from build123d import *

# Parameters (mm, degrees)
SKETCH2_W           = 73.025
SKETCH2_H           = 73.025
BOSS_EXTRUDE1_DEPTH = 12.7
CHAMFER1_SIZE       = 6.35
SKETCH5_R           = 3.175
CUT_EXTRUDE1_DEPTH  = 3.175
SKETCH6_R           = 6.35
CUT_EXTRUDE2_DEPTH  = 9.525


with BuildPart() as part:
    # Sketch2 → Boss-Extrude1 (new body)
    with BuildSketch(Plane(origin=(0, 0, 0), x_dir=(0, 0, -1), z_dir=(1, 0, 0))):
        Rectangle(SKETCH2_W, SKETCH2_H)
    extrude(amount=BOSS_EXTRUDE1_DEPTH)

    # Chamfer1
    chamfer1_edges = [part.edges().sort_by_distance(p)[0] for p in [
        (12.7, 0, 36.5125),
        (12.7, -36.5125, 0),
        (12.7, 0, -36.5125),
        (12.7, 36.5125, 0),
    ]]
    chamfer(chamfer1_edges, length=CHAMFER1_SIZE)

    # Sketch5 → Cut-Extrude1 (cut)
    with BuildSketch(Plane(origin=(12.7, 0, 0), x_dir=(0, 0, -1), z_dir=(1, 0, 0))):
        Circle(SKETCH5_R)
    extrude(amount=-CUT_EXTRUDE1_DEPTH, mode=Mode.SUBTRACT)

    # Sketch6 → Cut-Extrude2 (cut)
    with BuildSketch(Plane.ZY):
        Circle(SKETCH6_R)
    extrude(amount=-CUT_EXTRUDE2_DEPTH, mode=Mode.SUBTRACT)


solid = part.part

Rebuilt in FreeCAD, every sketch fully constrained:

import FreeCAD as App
import Part
import Sketcher
from FreeCAD import Vector
Q = App.Units.Quantity


def edges_at(feature, points):
    """Names of the edges that pass closest to the given points."""
    edges = feature.Shape.Edges
    near = lambda p: min(range(len(edges)), key=lambda i: edges[i].distToShape(Part.Vertex(*p))[0])
    return sorted({f"Edge{near(p) + 1}" for p in points})

doc = App.newDocument("Part")
body = doc.addObject("PartDesign::Body", "Body")

# Sketch on YZ plane
sketch1 = body.newObject("Sketcher::SketchObject", "Sketch")
sketch1.AttachmentSupport = (doc.getObject("YZ_Plane"), [""])
sketch1.MapMode = "FlatFace"
sketch1.addGeometry([
    Part.LineSegment(Vector(37, 37, 0), Vector(-37, 37, 0)),
    Part.LineSegment(Vector(-37, 37, 0), Vector(-37, -37, 0)),
    Part.LineSegment(Vector(-37, -37, 0), Vector(37, -37, 0)),
    Part.LineSegment(Vector(37, -37, 0), Vector(37, 37, 0)),
], False)
sketch1.addConstraint([
    Sketcher.Constraint("Coincident", 0, 2, 1, 1),
    Sketcher.Constraint("Coincident", 1, 2, 2, 1),
    Sketcher.Constraint("Coincident", 2, 2, 3, 1),
    Sketcher.Constraint("Coincident", 3, 2, 0, 1),
    Sketcher.Constraint("Horizontal", 0),
    Sketcher.Constraint("Vertical", 1),
    Sketcher.Constraint("Horizontal", 2),
    Sketcher.Constraint("Vertical", 3),
    Sketcher.Constraint("Symmetric", 0, 2, 2, 2, -1, 1),
    Sketcher.Constraint("Equal", 2, 1),
    Sketcher.Constraint("DistanceX", 0, 2, 0, 1, Q("2.875 in")),
])
pad1 = body.newObject("PartDesign::Pad", "Pad")
pad1.Profile = sketch1
pad1.Length = Q("0.5 in")
doc.recompute()

chamfer = body.newObject("PartDesign::Chamfer", "Chamfer")
chamfer.Base = (pad1, edges_at(pad1, [
    (12.7, 0, 36.513),
    (12.7, -36.513, 0),
    (12.7, 0, -36.513),
    (12.7, 36.513, 0),
]))
chamfer.Size = Q("0.25 in")

# Sketch on YZ plane
sketch2 = body.newObject("Sketcher::SketchObject", "Sketch001")
sketch2.AttachmentSupport = (doc.getObject("YZ_Plane"), [""])
sketch2.MapMode = "FlatFace"
sketch2.AttachmentOffset = App.Placement(Vector(0, 0, 0.5 * 25.4), App.Rotation())
sketch2.addGeometry(Part.Circle(Vector(0, 0, 0), Vector(0, 0, 1), 3.2), False)
sketch2.addConstraint([
    Sketcher.Constraint("Coincident", 0, 3, -1, 1),
    Sketcher.Constraint("Diameter", 0, Q("0.25 in")),
])
pocket1 = body.newObject("PartDesign::Pocket", "Pocket")
pocket1.Profile = sketch2
pocket1.Length = Q("0.125 in")

# Sketch on YZ plane
sketch3 = body.newObject("Sketcher::SketchObject", "Sketch002")
sketch3.AttachmentSupport = (doc.getObject("YZ_Plane"), [""])
sketch3.MapMode = "FlatFace"
sketch3.addGeometry(Part.Circle(Vector(0, 0, 0), Vector(0, 0, 1), 6), False)
sketch3.addConstraint([
    Sketcher.Constraint("Coincident", 0, 3, -1, 1),
    Sketcher.Constraint("Diameter", 0, Q("0.5 in")),
])
pocket2 = body.newObject("PartDesign::Pocket", "Pocket001")
pocket2.Profile = sketch3
pocket2.Length = Q("0.375 in")
pocket2.Reversed = True

doc.recompute()
